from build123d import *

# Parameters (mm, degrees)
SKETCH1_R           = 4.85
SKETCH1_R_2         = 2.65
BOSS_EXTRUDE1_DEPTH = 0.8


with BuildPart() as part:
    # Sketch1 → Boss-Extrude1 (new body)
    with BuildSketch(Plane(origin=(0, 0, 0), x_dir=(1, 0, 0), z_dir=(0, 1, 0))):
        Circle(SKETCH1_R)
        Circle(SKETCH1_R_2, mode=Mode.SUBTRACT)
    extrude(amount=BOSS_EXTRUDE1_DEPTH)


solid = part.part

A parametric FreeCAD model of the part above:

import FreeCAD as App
import Part
import Sketcher

V = App.Vector

doc = App.newDocument("Part")
body = doc.addObject("PartDesign::Body", "Body")

# Sketch on XZ plane
sketch1 = body.newObject("Sketcher::SketchObject", "Sketch")
sketch1.AttachmentSupport = (doc.getObject("XZ_Plane"), [""])
sketch1.MapMode = "FlatFace"
sketch1.addGeometry([
    Part.Circle(V(0, 0, 0), V(0, 0, 1), 4.8),
    Part.Circle(V(0, 0, 0), V(0, 0, 1), 2.6),
], False)
sketch1.addConstraint([
    Sketcher.Constraint("Coincident", 0, 3, -1, 1),
    Sketcher.Constraint("Coincident", 1, 3, -1, 1),
    Sketcher.Constraint("Diameter", 0, 9.7),
    Sketcher.Constraint("Diameter", 1, 5.3),
])
pad1 = body.newObject("PartDesign::Pad", "Pad")
pad1.Profile = sketch1
pad1.Length = 0.8
pad1.Reversed = True

doc.recompute()
